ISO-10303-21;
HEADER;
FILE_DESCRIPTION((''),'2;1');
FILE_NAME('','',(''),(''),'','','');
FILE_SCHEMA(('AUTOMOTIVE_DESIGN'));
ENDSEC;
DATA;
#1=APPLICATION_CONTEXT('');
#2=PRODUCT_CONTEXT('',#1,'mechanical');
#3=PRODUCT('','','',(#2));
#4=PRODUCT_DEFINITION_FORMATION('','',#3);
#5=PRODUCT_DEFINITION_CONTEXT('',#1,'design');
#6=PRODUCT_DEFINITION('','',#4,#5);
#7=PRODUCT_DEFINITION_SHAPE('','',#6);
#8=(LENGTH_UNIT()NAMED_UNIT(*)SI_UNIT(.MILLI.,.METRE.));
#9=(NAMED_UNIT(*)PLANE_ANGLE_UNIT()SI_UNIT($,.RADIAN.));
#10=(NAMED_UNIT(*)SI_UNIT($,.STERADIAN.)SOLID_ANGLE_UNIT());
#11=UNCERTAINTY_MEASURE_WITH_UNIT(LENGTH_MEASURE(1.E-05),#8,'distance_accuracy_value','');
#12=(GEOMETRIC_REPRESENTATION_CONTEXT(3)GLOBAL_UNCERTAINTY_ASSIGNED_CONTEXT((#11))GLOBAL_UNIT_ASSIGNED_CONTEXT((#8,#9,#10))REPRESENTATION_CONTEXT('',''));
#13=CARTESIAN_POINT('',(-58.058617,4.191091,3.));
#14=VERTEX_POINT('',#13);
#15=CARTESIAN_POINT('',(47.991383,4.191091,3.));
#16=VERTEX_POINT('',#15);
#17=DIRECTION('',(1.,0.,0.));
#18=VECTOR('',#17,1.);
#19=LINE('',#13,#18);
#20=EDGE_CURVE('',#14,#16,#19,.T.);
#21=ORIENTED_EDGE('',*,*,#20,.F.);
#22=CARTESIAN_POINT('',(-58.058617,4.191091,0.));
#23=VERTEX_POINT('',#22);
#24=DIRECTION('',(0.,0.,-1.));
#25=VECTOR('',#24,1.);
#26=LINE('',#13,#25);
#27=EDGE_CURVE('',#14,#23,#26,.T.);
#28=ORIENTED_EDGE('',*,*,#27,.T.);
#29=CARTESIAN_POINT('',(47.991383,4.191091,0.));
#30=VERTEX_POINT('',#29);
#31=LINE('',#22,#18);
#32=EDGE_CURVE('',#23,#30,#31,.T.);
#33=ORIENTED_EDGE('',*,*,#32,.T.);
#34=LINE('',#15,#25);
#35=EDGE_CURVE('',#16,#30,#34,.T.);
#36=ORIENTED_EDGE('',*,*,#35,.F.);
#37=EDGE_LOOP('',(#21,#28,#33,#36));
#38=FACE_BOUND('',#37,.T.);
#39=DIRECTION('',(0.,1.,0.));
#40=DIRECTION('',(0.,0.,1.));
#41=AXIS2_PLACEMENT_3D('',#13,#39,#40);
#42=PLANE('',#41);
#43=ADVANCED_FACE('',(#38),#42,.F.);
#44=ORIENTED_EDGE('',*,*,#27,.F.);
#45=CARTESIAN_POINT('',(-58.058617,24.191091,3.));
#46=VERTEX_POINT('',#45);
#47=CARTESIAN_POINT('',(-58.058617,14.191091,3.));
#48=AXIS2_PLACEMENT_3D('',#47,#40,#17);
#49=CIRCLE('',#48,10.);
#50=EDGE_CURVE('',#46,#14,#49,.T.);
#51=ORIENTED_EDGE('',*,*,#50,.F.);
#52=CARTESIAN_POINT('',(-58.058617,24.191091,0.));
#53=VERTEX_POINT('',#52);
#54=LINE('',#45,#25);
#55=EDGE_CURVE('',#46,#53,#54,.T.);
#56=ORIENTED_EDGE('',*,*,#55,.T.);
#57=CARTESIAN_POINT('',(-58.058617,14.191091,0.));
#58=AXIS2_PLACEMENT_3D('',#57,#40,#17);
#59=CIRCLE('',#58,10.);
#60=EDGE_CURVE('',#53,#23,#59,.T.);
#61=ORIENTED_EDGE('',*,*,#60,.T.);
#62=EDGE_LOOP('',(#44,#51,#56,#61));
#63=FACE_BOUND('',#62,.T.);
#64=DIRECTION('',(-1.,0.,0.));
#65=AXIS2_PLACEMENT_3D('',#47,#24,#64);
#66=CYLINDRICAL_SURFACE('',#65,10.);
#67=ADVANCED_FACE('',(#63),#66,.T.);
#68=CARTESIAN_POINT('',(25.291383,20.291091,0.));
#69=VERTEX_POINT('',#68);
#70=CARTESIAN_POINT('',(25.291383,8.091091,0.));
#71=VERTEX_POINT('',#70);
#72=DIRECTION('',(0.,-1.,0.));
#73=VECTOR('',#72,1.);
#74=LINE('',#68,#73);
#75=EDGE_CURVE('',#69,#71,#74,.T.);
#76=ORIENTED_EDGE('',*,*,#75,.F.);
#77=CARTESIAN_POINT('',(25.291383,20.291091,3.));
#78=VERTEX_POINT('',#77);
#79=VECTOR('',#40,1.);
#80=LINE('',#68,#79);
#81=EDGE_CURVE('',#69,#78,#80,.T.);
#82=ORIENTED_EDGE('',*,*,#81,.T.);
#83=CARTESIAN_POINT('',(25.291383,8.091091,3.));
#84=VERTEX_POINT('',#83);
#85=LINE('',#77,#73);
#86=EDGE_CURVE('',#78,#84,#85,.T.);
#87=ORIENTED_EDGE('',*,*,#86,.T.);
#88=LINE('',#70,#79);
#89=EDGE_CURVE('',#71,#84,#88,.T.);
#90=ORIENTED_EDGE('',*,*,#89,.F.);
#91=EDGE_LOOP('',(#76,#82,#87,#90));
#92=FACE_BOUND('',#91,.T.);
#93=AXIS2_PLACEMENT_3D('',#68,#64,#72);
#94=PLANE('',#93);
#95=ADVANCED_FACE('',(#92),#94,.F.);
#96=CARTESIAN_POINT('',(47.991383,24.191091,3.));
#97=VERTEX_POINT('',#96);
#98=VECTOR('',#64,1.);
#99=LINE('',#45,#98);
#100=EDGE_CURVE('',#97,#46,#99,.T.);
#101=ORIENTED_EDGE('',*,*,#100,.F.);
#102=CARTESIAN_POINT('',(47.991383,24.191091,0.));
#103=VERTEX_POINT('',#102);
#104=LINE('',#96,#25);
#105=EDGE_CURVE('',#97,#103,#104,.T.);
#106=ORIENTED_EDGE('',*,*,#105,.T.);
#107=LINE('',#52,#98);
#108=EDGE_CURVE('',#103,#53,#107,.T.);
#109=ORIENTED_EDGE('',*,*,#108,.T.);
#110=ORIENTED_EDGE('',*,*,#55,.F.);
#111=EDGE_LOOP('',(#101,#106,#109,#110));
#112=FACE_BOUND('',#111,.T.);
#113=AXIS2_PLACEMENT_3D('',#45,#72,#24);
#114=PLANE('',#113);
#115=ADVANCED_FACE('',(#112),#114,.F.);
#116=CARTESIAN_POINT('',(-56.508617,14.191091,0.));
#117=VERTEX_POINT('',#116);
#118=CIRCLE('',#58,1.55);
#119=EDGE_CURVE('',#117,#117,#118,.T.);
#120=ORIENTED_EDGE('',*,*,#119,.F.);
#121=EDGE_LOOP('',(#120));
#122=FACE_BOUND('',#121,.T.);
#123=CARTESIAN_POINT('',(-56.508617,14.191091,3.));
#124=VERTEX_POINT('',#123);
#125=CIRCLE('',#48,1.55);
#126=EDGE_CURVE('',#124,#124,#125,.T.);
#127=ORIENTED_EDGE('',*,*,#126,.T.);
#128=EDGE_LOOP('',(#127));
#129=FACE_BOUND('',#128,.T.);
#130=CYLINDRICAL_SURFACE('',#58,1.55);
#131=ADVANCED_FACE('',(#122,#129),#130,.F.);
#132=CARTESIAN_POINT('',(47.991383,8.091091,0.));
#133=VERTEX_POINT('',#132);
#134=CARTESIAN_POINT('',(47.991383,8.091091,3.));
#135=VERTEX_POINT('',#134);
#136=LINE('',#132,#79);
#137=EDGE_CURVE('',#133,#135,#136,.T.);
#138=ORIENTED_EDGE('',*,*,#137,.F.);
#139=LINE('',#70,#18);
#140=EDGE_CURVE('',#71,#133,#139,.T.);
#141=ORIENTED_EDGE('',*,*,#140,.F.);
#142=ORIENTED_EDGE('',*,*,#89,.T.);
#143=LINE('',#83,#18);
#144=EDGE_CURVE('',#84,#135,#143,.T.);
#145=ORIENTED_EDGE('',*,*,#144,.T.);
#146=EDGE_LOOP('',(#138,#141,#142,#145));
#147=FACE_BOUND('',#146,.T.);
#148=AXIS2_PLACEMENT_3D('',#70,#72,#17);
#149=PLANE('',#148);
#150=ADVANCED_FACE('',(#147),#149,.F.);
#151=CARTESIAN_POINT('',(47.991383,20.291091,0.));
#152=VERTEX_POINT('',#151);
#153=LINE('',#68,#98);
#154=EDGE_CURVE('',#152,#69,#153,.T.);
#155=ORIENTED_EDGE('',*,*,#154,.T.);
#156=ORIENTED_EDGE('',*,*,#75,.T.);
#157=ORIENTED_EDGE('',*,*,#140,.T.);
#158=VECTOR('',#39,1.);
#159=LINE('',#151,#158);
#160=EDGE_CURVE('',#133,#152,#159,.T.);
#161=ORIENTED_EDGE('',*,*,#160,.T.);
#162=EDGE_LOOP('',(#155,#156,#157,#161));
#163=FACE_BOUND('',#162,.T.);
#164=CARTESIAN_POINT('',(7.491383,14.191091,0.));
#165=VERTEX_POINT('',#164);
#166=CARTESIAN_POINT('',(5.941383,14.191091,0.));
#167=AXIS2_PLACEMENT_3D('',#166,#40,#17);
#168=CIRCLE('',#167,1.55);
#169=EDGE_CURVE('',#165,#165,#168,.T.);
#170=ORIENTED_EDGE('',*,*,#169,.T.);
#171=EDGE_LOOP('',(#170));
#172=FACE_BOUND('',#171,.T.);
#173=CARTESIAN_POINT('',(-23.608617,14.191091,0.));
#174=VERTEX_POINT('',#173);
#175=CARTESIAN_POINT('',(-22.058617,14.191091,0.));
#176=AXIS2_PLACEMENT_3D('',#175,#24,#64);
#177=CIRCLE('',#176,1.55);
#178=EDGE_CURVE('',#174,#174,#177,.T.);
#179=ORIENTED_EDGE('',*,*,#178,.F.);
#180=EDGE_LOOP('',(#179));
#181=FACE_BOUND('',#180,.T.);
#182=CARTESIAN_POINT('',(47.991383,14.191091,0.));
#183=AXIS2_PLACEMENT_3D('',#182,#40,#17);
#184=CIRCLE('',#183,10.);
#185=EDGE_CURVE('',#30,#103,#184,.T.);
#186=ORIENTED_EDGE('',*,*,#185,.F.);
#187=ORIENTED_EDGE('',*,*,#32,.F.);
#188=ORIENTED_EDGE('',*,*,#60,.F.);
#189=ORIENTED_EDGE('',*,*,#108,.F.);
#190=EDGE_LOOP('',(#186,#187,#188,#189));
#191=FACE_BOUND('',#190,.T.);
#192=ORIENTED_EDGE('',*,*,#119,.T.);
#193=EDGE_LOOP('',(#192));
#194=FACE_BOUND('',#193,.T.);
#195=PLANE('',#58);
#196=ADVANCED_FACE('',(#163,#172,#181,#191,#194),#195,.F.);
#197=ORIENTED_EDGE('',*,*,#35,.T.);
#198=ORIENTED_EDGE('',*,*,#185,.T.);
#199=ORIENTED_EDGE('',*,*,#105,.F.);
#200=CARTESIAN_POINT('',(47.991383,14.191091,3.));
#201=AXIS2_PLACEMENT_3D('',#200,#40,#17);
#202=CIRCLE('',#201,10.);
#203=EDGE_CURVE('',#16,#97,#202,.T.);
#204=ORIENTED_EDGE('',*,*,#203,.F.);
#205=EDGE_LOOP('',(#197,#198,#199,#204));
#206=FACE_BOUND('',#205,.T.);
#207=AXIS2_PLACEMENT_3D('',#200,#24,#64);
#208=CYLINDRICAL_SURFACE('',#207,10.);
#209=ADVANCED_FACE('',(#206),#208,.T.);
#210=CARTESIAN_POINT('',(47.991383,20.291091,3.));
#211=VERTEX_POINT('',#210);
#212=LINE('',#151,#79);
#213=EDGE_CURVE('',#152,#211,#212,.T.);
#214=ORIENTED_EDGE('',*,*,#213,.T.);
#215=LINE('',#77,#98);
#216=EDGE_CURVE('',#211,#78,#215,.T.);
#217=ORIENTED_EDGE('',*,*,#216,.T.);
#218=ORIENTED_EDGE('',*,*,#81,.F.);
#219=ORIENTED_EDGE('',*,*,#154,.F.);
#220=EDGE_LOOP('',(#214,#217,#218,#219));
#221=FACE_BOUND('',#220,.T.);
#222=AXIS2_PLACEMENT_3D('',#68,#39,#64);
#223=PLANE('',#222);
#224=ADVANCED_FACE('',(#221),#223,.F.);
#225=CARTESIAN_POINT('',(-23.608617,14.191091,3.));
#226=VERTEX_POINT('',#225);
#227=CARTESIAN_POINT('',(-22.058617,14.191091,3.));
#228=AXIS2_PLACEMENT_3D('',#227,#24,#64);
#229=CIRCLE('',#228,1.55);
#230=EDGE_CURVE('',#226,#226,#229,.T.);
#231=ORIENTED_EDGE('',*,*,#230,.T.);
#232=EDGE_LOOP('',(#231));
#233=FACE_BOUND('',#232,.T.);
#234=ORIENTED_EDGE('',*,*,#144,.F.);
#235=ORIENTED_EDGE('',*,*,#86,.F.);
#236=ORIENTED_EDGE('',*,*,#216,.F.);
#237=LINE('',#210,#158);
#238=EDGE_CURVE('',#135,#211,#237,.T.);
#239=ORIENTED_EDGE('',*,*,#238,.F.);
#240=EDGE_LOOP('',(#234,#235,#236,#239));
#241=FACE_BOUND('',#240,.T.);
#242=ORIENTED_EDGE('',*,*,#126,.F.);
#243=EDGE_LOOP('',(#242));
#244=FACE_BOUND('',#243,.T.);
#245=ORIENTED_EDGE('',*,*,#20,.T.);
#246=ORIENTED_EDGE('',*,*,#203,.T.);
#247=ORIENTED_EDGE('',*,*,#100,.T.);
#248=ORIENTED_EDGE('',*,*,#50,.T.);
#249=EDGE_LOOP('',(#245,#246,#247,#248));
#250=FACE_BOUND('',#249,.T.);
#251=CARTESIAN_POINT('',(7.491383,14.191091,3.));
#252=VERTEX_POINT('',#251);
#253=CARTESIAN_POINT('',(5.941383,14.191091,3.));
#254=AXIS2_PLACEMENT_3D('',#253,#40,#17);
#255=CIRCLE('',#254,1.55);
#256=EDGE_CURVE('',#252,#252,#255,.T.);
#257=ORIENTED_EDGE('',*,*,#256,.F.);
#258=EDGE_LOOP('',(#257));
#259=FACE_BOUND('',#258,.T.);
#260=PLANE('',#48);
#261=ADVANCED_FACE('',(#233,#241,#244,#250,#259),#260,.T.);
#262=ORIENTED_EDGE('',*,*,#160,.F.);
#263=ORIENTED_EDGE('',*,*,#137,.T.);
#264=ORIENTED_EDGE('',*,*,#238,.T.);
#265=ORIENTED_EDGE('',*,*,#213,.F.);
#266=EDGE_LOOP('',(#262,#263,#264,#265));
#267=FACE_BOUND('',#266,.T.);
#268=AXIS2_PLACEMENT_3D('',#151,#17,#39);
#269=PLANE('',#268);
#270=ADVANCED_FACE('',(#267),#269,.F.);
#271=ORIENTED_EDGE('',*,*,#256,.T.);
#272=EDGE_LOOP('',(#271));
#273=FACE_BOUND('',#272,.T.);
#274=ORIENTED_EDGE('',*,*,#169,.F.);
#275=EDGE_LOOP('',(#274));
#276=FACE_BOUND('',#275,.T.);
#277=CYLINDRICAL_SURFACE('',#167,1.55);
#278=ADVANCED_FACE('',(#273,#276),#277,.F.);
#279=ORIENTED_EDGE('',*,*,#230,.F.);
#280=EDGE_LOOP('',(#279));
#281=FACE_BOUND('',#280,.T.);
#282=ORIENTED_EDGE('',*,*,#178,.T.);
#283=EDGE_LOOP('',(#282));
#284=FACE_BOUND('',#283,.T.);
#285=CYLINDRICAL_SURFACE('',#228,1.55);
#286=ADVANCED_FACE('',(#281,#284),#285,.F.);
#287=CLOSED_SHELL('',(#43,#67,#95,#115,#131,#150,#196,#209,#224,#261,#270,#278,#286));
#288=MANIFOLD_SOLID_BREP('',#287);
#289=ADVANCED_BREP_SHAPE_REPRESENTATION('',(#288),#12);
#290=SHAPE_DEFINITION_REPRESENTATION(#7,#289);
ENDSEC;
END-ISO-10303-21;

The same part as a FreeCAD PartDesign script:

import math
import FreeCAD as App
import Part
import Sketcher
from FreeCAD import Vector

doc = App.newDocument("Part")
body = doc.addObject("PartDesign::Body", "Body")

# Sketch on XY plane
sketch1 = body.newObject("Sketcher::SketchObject", "Sketch")
sketch1.AttachmentSupport = (doc.getObject("XY_Plane"), [""])
sketch1.MapMode = "FlatFace"
sketch1.addGeometry([
    Part.LineSegment(Vector(47.991383, 24.191091, 0), Vector(-58.058617, 24.191091, 0)),
    Part.ArcOfCircle(Part.Circle(Vector(-58.058617, 14.191091, 0), Vector(0, 0, 1), 10), math.radians(90), math.radians(270)),
    Part.LineSegment(Vector(-58.058617, 4.191091, 0), Vector(47.991383, 4.191091, 0)),
    Part.ArcOfCircle(Part.Circle(Vector(47.991383, 14.191091, 0), Vector(0, 0, 1), 10), math.radians(-90), math.radians(90)),
], False)
sketch1.addConstraint([
    Sketcher.Constraint("Tangent", 0, 2, 1, 1),
    Sketcher.Constraint("Tangent", 1, 2, 2, 1),
    Sketcher.Constraint("Tangent", 2, 2, 3, 1),
    Sketcher.Constraint("Tangent", 3, 2, 0, 1),
    Sketcher.Constraint("Horizontal", 0),
    Sketcher.Constraint("Horizontal", 2),
    Sketcher.Constraint("Radius", 1, 10.0),
    Sketcher.Constraint("DistanceX", 0, 2, 0, 1, 106.05),
    Sketcher.Constraint("DistanceY", -1, 1, 1, 3, 14.191091),
    Sketcher.Constraint("DistanceX", 1, 3, -1, 1, 58.058617),
])
pad1 = body.newObject("PartDesign::Pad", "Pad")
pad1.Profile = sketch1
pad1.Length = 3

# Sketch on XY plane
sketch2 = body.newObject("Sketcher::SketchObject", "Sketch001")
sketch2.AttachmentSupport = (doc.getObject("XY_Plane"), [""])
sketch2.MapMode = "FlatFace"
sketch2.AttachmentOffset = App.Placement(Vector(0, 0, 3), App.Rotation())
sketch2.addGeometry(Part.Circle(Vector(-58.058617, 14.191091, 0), Vector(0, 0, 1), 1.55), False)
sketch2.addConstraint([
    Sketcher.Constraint("Diameter", 0, 3.1),
    Sketcher.Constraint("DistanceY", -1, 1, 0, 3, 14.191091),
    Sketcher.Constraint("DistanceX", 0, 3, -1, 1, 58.058617),
])
pocket1 = body.newObject("PartDesign::Pocket", "Pocket")
pocket1.Profile = sketch2
pocket1.Length = 3

# Sketch on XY plane
sketch3 = body.newObject("Sketcher::SketchObject", "Sketch002")
sketch3.AttachmentSupport = (doc.getObject("XY_Plane"), [""])
sketch3.MapMode = "FlatFace"
sketch3.AttachmentOffset = App.Placement(Vector(0, 0, 3), App.Rotation())
sketch3.addGeometry(Part.Circle(Vector(5.941383, 14.191091, 0), Vector(0, 0, 1), 1.55), False)
sketch3.addConstraint([
    Sketcher.Constraint("Diameter", 0, 3.1),
    Sketcher.Constraint("DistanceY", -1, 1, 0, 3, 14.191091),
    Sketcher.Constraint("DistanceX", -1, 1, 0, 3, 5.941383),
])
pocket2 = body.newObject("PartDesign::Pocket", "Pocket001")
pocket2.Profile = sketch3
pocket2.Length = 3

# Sketch on XY plane
sketch4 = body.newObject("Sketcher::SketchObject", "Sketch003")
sketch4.AttachmentSupport = (doc.getObject("XY_Plane"), [""])
sketch4.MapMode = "FlatFace"
sketch4.addGeometry(Part.Circle(Vector(-22.058617, 14.191091, 0), Vector(0, 0, 1), 1.55), False)
sketch4.addConstraint([
    Sketcher.Constraint("Diameter", 0, 3.1),
    Sketcher.Constraint("DistanceY", -1, 1, 0, 3, 14.191091),
    Sketcher.Constraint("DistanceX", 0, 3, -1, 1, 22.058617),
])
pocket3 = body.newObject("PartDesign::Pocket", "Pocket002")
pocket3.Profile = sketch4
pocket3.Length = 3
pocket3.Reversed = True

# Sketch on XY plane
sketch5 = body.newObject("Sketcher::SketchObject", "Sketch004")
sketch5.AttachmentSupport = (doc.getObject("XY_Plane"), [""])
sketch5.MapMode = "FlatFace"
sketch5.AttachmentOffset = App.Placement(Vector(0, 0, 3), App.Rotation())
sketch5.addGeometry([
    Part.LineSegment(Vector(25.291383, 20.291091, 0), Vector(25.291383, 8.091091, 0)),
    Part.LineSegment(Vector(25.291383, 8.091091, 0), Vector(47.991383, 8.091091, 0)),
    Part.LineSegment(Vector(47.991383, 8.091091, 0), Vector(47.991383, 20.291091, 0)),
    Part.LineSegment(Vector(47.991383, 20.291091, 0), Vector(25.291383, 20.291091, 0)),
], False)
sketch5.addConstraint([
    Sketcher.Constraint("Coincident", 0, 2, 1, 1),
    Sketcher.Constraint("Coincident", 1, 2, 2, 1),
    Sketcher.Constraint("Coincident", 2, 2, 3, 1),
    Sketcher.Constraint("Coincident", 3, 2, 0, 1),
    Sketcher.Constraint("Vertical", 0),
    Sketcher.Constraint("Horizontal", 1),
    Sketcher.Constraint("Vertical", 2),
    Sketcher.Constraint("Horizontal", 3),
    Sketcher.Constraint("DistanceX", 1, 1, 1, 2, 22.7),
    Sketcher.Constraint("DistanceY", 0, 2, 0, 1, 12.2),
    Sketcher.Constraint("DistanceY", -1, 1, 0, 2, 8.091091),
    Sketcher.Constraint("DistanceX", -1, 1, 0, 2, 25.291383),
])
pocket4 = body.newObject("PartDesign::Pocket", "Pocket003")
pocket4.Profile = sketch5
pocket4.Length = 3

doc.recompute()
